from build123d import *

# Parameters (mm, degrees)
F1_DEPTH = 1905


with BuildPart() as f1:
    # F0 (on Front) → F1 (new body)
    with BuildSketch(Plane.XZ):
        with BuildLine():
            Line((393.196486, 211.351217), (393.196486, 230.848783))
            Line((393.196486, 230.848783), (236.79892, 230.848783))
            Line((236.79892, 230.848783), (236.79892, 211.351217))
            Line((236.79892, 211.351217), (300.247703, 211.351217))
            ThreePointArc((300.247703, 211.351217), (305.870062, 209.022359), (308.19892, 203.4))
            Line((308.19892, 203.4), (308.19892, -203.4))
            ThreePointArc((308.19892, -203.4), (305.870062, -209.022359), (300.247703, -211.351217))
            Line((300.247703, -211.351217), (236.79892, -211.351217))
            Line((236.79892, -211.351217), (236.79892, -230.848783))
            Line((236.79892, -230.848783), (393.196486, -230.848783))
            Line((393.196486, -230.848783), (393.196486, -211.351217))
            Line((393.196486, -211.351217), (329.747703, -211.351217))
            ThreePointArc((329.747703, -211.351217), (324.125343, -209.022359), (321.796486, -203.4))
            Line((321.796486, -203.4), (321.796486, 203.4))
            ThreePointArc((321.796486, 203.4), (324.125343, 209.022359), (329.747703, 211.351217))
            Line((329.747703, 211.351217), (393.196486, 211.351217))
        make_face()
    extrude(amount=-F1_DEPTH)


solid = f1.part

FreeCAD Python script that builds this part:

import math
import FreeCAD as App
import Part
import Sketcher
Q = App.Units.Quantity

doc = App.newDocument("Part")
body = doc.addObject("PartDesign::Body", "Body")

sketch1 = doc.addObject("Sketcher::SketchObject", "Sketch")
body.addObject(sketch1)
sketch1.AttachmentSupport = (doc.XZ_Plane, [""])
sketch1.MapMode = "FlatFace"
sketch1.addGeometry([
    Part.LineSegment(App.Vector(393, 211, 0), App.Vector(393, 231, 0)),
    Part.LineSegment(App.Vector(393, 231, 0), App.Vector(237, 231, 0)),
    Part.LineSegment(App.Vector(237, 231, 0), App.Vector(237, 211, 0)),
    Part.LineSegment(App.Vector(237, 211, 0), App.Vector(300, 211, 0)),
    Part.ArcOfCircle(Part.Circle(App.Vector(300, 203, 0), App.Vector(0, 0, 1), 8), math.radians(0), math.radians(90)),
    Part.LineSegment(App.Vector(308, 203, 0), App.Vector(308, -203, 0)),
    Part.ArcOfCircle(Part.Circle(App.Vector(300, -203, 0), App.Vector(0, 0, 1), 8), math.radians(-90), math.radians(0)),
    Part.LineSegment(App.Vector(300, -211, 0), App.Vector(237, -211, 0)),
    Part.LineSegment(App.Vector(237, -211, 0), App.Vector(237, -231, 0)),
    Part.LineSegment(App.Vector(237, -231, 0), App.Vector(393, -231, 0)),
    Part.LineSegment(App.Vector(393, -231, 0), App.Vector(393, -211, 0)),
    Part.LineSegment(App.Vector(393, -211, 0), App.Vector(330, -211, 0)),
    Part.ArcOfCircle(Part.Circle(App.Vector(330, -203, 0), App.Vector(0, 0, 1), 8), math.radians(180), math.radians(270)),
    Part.LineSegment(App.Vector(322, -203, 0), App.Vector(322, 203, 0)),
    Part.ArcOfCircle(Part.Circle(App.Vector(330, 203, 0), App.Vector(0, 0, 1), 8), math.radians(90), math.radians(180)),
    Part.LineSegment(App.Vector(330, 211, 0), App.Vector(393, 211, 0)),
], False)
sketch1.addConstraint([
    Sketcher.Constraint("Coincident", 0, 2, 1, 1),
    Sketcher.Constraint("Coincident", 1, 2, 2, 1),
    Sketcher.Constraint("Coincident", 2, 2, 3, 1),
    Sketcher.Constraint("Tangent", 3, 2, 4, 2),
    Sketcher.Constraint("Tangent", 4, 1, 5, 1),
    Sketcher.Constraint("Tangent", 5, 2, 6, 2),
    Sketcher.Constraint("Tangent", 6, 1, 7, 1),
    Sketcher.Constraint("Coincident", 7, 2, 8, 1),
    Sketcher.Constraint("Coincident", 8, 2, 9, 1),
    Sketcher.Constraint("Coincident", 9, 2, 10, 1),
    Sketcher.Constraint("Coincident", 10, 2, 11, 1),
    Sketcher.Constraint("Tangent", 11, 2, 12, 2),
    Sketcher.Constraint("Tangent", 12, 1, 13, 1),
    Sketcher.Constraint("Tangent", 13, 2, 14, 2),
    Sketcher.Constraint("Tangent", 14, 1, 15, 1),
    Sketcher.Constraint("Coincident", 15, 2, 0, 1),
    Sketcher.Constraint("Vertical", 0),
    Sketcher.Constraint("Horizontal", 1),
    Sketcher.Constraint("Vertical", 2),
    Sketcher.Constraint("Horizontal", 3),
    Sketcher.Constraint("Vertical", 5),
    Sketcher.Constraint("Horizontal", 7),
    Sketcher.Constraint("Vertical", 8),
    Sketcher.Constraint("Horizontal", 9),
    Sketcher.Constraint("Vertical", 10),
    Sketcher.Constraint("Horizontal", 11),
    Sketcher.Constraint("Vertical", 13),
    Sketcher.Constraint("Horizontal", 15),
    Sketcher.Constraint("Equal", 4, 6),
    Sketcher.Constraint("Equal", 6, 12),
    Sketcher.Constraint("Equal", 12, 14),
    Sketcher.Constraint("Symmetric", 2, 2, 7, 2, -1),
    Sketcher.Constraint("Symmetric", 0, 2, 9, 2, -1),
    Sketcher.Constraint("Horizontal", 6, 3, 12, 3),
    Sketcher.Constraint("Horizontal", 4, 3, 14, 3),
    Sketcher.Constraint("Equal", 7, 11),
    Sketcher.Constraint("DistanceY", 5, 2, 5, 1, Q("406.8 mm")),
    Sketcher.Constraint("DistanceX", 6, 3, 12, 3, Q("29.500001 mm")),
    Sketcher.Constraint("DistanceX", 2, 2, 4, 1, Q("71.4 mm")),
    Sketcher.Constraint("Radius", 4, Q("7.951219 mm")),
    Sketcher.Constraint("DistanceX", -1, 1, 4, 3, Q("300.247701 mm")),
    Sketcher.Constraint("DistanceY", 0, 1, 0, 2, Q("19.497566 mm")),
])
pad1 = doc.addObject("PartDesign::Pad", "Pad")
body.addObject(pad1)
pad1.Profile = sketch1
pad1.Length = 1905
pad1.Reversed = True

doc.recompute()
